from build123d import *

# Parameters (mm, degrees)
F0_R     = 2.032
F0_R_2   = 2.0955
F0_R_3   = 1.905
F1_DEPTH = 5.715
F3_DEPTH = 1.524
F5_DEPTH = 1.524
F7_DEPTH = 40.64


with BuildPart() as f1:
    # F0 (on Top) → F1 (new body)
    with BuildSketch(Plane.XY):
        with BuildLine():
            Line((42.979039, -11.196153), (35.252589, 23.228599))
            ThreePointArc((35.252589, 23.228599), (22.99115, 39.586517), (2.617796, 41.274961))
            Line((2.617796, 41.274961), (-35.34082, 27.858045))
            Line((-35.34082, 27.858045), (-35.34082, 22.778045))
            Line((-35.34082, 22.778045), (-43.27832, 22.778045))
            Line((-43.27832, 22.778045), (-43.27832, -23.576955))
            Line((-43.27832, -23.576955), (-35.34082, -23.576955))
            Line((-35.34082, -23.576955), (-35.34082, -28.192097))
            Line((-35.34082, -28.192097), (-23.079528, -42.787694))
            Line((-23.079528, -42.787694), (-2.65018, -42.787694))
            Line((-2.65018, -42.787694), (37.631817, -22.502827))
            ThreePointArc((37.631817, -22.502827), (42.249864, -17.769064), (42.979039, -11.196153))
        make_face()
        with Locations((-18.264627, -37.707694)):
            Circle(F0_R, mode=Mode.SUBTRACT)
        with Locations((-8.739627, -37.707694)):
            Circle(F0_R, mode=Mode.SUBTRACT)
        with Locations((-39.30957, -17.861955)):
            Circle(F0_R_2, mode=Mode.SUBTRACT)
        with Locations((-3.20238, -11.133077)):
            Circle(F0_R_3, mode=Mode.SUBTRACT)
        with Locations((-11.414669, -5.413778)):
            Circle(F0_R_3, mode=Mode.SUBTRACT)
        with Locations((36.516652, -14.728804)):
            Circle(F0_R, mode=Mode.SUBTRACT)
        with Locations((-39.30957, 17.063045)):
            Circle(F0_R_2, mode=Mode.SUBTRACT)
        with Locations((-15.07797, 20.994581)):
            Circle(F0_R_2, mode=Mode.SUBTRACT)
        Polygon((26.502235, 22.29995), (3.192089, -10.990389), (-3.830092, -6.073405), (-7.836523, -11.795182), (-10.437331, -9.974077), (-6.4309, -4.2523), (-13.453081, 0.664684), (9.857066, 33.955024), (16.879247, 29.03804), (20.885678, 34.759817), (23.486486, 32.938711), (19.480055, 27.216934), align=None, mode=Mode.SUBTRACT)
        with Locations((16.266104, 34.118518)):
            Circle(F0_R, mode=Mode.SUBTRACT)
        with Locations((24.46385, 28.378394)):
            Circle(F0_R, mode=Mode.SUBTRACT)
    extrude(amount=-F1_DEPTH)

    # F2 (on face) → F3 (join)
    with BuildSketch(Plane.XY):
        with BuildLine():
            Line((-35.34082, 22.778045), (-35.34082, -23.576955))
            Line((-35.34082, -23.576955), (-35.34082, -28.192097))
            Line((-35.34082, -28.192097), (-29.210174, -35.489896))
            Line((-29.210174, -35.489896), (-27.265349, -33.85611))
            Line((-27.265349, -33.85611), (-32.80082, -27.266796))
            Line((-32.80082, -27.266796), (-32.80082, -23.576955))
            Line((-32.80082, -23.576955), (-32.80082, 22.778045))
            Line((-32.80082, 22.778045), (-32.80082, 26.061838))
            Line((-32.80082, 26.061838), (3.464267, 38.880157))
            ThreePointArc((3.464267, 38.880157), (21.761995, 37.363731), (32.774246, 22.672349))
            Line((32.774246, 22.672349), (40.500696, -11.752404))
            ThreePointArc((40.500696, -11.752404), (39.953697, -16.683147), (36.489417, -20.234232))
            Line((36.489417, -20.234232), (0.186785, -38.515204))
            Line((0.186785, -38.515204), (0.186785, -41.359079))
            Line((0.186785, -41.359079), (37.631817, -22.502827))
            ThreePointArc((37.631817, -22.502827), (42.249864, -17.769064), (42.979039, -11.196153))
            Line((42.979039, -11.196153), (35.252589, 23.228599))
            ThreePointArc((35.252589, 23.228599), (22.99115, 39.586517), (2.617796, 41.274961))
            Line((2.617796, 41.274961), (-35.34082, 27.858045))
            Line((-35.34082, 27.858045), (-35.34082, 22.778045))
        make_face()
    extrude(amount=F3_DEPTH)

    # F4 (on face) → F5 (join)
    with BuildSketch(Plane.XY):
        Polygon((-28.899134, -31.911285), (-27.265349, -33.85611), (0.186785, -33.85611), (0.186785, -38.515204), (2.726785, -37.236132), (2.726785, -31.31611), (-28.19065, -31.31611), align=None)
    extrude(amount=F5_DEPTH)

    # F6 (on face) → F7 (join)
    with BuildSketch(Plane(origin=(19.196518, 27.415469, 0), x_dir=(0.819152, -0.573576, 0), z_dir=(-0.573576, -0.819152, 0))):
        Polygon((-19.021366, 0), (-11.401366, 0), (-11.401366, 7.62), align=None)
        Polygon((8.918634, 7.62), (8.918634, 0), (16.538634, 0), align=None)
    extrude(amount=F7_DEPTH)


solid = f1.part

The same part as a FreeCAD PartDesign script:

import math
import FreeCAD as App
import Part
import Sketcher

V = App.Vector
Q = App.Units.Quantity


def add_polygon(sketch, points):
    """Adds a closed chain of lines whose ends are joined by coincident constraints."""
    first, n = sketch.GeometryCount, len(points)
    for a, b in zip(points, points[1:] + points[:1]):
        sketch.addGeometry(Part.LineSegment(App.Vector(*a, 0), App.Vector(*b, 0)), False)
    for i in range(n):
        sketch.addConstraint(Sketcher.Constraint("Coincident", first + i, 2, first + (i + 1) % n, 1))

doc = App.newDocument("Part")
params = doc.addObject("Spreadsheet::Sheet", "Params")
for row, (alias, value) in enumerate([
    ("sketch1_diameter", "0.16 in"),
    ("sketch1_diameter2", "0.15 in"),
    ("sketch1_diameter3", "0.165 in"),
    ("sketch1_height", "0.2 in"),
    ("sketch1_length", "1.6 in"),
    ("pad1_length", "0.225 in"),
    ("sketch2_length", "0.1 in"),
    ("pad2_length", "0.06 in"),
    ("sketch3_length", "0.1 in"),
    ("pad3_length", "0.06 in"),
    ("sketch4_width", "0.3 in"),
    ("pad4_length", "1.6 in"),
], start=1):
    params.set(f"A{row}", alias)
    params.set(f"B{row}", "=" + value)
    params.setAlias(f"B{row}", alias)

body = doc.addObject("PartDesign::Body", "Body")

# Sketch on XY plane
sketch1 = body.newObject("Sketcher::SketchObject", "Sketch")
sketch1.AttachmentSupport = (doc.getObject("XY_Plane"), [""])
sketch1.MapMode = "FlatFace"
sketch1.addGeometry(Part.LineSegment(V(42.979039, -11.196153, 0), V(35.252589, 23.228599, 0)), False)  # 0
sketch1.addGeometry(Part.ArcOfCircle(Part.Circle(V(10.926355, 17.768708, 0), V(0, 0, 1), 24.931428), math.radians(12.65009), math.radians(109.466547)), False)  # 1
sketch1.addGeometry(Part.LineSegment(V(2.617796, 41.274961, 0), V(-35.34082, 27.858045, 0)), False)  # 2
sketch1.addGeometry(Part.LineSegment(V(-35.34082, 27.858045, 0), V(-35.34082, 22.778045, 0)), False)  # 3
sketch1.addGeometry(Part.LineSegment(V(-35.34082, 22.778045, 0), V(-43.27832, 22.778045, 0)), False)  # 4
sketch1.addGeometry(Part.LineSegment(V(-43.27832, 22.778045, 0), V(-43.27832, -23.576955, 0)), False)  # 5
sketch1.addGeometry(Part.LineSegment(V(-43.27832, -23.576955, 0), V(-35.34082, -23.576955, 0)), False)  # 6
sketch1.addGeometry(Part.LineSegment(V(-35.34082, -23.576955, 0), V(-35.34082, -28.192097, 0)), False)  # 7
sketch1.addGeometry(Part.LineSegment(V(-35.34082, -28.192097, 0), V(-23.079528, -42.787694, 0)), False)  # 8
sketch1.addGeometry(Part.LineSegment(V(-23.079528, -42.787694, 0), V(-2.65018, -42.787694, 0)), False)  # 9
sketch1.addGeometry(Part.LineSegment(V(-2.65018, -42.787694, 0), V(37.631817, -22.502827, 0)), False)  # 10
sketch1.addGeometry(Part.ArcOfCircle(Part.Circle(V(33.059267, -13.422591, 0), V(0, 0, 1), 10.166558), math.radians(-63.271468), math.radians(12.650083)), False)  # 11
sketch1.addGeometry(Part.Circle(V(-18.264627, -37.707694, 0), V(0, 0, 1), 2.032), False)  # 12
sketch1.addGeometry(Part.Circle(V(-8.739627, -37.707694, 0), V(0, 0, 1), 2.032), False)  # 13
sketch1.addGeometry(Part.Circle(V(-39.30957, -17.861955, 0), V(0, 0, 1), 2.0955), False)  # 14
sketch1.addGeometry(Part.Circle(V(-3.20238, -11.133077, 0), V(0, 0, 1), 1.905), False)  # 15
sketch1.addGeometry(Part.Circle(V(-11.414669, -5.413778, 0), V(0, 0, 1), 1.905), False)  # 16
sketch1.addGeometry(Part.Circle(V(36.516652, -14.728804, 0), V(0, 0, 1), 2.032), False)  # 17
sketch1.addGeometry(Part.Circle(V(-39.30957, 17.063045, 0), V(0, 0, 1), 2.0955), False)  # 18
sketch1.addGeometry(Part.Circle(V(-15.07797, 20.994581, 0), V(0, 0, 1), 2.0955), False)  # 19
add_polygon(sketch1, [(19.480055, 27.216934), (26.502235, 22.29995), (3.192089, -10.990389), (-3.830092, -6.073405), (-7.836523, -11.795182), (-10.437331, -9.974077), (-6.4309, -4.2523), (-13.453081, 0.664684), (9.857066, 33.955024), (16.879247, 29.03804), (20.885678, 34.759817), (23.486486, 32.938711)])  # lines 20-31
sketch1.addGeometry(Part.Circle(V(16.266104, 34.118518, 0), V(0, 0, 1), 2.032), False)  # 32
sketch1.addGeometry(Part.Circle(V(24.46385, 28.378394, 0), V(0, 0, 1), 2.032), False)  # 33
sketch1.addConstraint([
    Sketcher.Constraint("Tangent", 0, 2, 1, 1),
    Sketcher.Constraint("Tangent", 1, 2, 2, 1),
    Sketcher.Constraint("Coincident", 2, 2, 3, 1),
    Sketcher.Constraint("Coincident", 3, 2, 4, 1),
    Sketcher.Constraint("Coincident", 4, 2, 5, 1),
    Sketcher.Constraint("Coincident", 5, 2, 6, 1),
    Sketcher.Constraint("Coincident", 6, 2, 7, 1),
    Sketcher.Constraint("Coincident", 7, 2, 8, 1),
    Sketcher.Constraint("Coincident", 8, 2, 9, 1),
    Sketcher.Constraint("Coincident", 9, 2, 10, 1),
    Sketcher.Constraint("Tangent", 10, 2, 11, 1),
    Sketcher.Constraint("Tangent", 11, 2, 0, 1),
    Sketcher.Constraint("Vertical", 3),
    Sketcher.Constraint("Horizontal", 4),
    Sketcher.Constraint("Vertical", 5),
    Sketcher.Constraint("Horizontal", 6),
    Sketcher.Constraint("Vertical", 7),
    Sketcher.Constraint("Horizontal", 9),
    Sketcher.Constraint("Equal", 12, 13),
    Sketcher.Constraint("Equal", 15, 16),
    Sketcher.Constraint("Equal", 13, 17),
    Sketcher.Constraint("Equal", 14, 18),
    Sketcher.Constraint("Equal", 18, 19),
    Sketcher.Constraint("Equal", 17, 32),
    Sketcher.Constraint("Equal", 32, 33),
    Sketcher.Constraint("Perpendicular", 20, 21),
    Sketcher.Constraint("Perpendicular", 21, 22),
    Sketcher.Constraint("Perpendicular", 22, 23),
    Sketcher.Constraint("Perpendicular", 23, 24),
    Sketcher.Constraint("Perpendicular", 24, 25),
    Sketcher.Constraint("Perpendicular", 25, 26),
    Sketcher.Constraint("Perpendicular", 26, 27),
    Sketcher.Constraint("Perpendicular", 27, 28),
    Sketcher.Constraint("Perpendicular", 28, 29),
    Sketcher.Constraint("Perpendicular", 29, 30),
    Sketcher.Constraint("Perpendicular", 30, 31),
    Sketcher.Constraint("Horizontal", 12, 3, 13, 3),
    Sketcher.Constraint("Vertical", 14, 3, 18, 3),
    Sketcher.Constraint("Vertical", 3, 2, 6, 2),
    Sketcher.Constraint("Equal", 20, 22),
    Sketcher.Constraint("Equal", 23, 25),
    Sketcher.Constraint("Equal", 22, 26),
    Sketcher.Constraint("Equal", 21, 27),
    Sketcher.Constraint("Equal", 26, 28),
    Sketcher.Constraint("Equal", 25, 29),
    Sketcher.Constraint("Diameter", 12, Q("0.16 in")),
    Sketcher.Constraint("Diameter", 15, Q("0.15 in")),
    Sketcher.Constraint("Diameter", 14, Q("0.165 in")),
    Sketcher.Constraint("DistanceY", 3, 2, 3, 1, Q("0.2 in")),
    Sketcher.Constraint("Angle", 20, Q("-35.000003 deg")),
    Sketcher.Constraint("Distance", 21, Q("1.6 in")),
    Sketcher.Constraint("DistanceY", 14, 3, 2, 2, Q("1.8 in")),
    Sketcher.Constraint("DistanceY", 5, 2, 18, 3, Q("1.6 in")),
    Sketcher.Constraint("DistanceY", 8, 2, 12, 3, Q("0.2 in")),
    Sketcher.Constraint("DistanceX", 4, 2, 4, 1, Q("0.3125 in")),
    Sketcher.Constraint("DistanceY", 5, 2, 5, 1, Q("1.825 in")),
    Sketcher.Constraint("Distance", 23, Q("0.275 in")),
    Sketcher.Constraint("Distance", 24, Q("0.125 in")),
    Sketcher.Constraint("Radius", 11, Q("10.166558 mm")),
    Sketcher.Constraint("DistanceX", 12, 3, 13, 3, Q("0.375 in")),
    Sketcher.Constraint("DistanceX", 18, 3, 19, 3, Q("0.954 in")),
    Sketcher.Constraint("DistanceX", 18, 3, 2, 2, Q("0.15625 in")),
    Sketcher.Constraint("Distance", 20, Q("0.3375 in")),
    Sketcher.Constraint("Radius", 1, Q("24.931428 mm")),
    Sketcher.Constraint("DistanceX", 9, 1, 9, 2, Q("20.429348 mm")),
    Sketcher.Constraint("DistanceY", 7, 2, 7, 1, Q("4.615142 mm")),
    Sketcher.Constraint("DistanceY", -1, 1, 0, 2, Q("23.228599 mm")),
    Sketcher.Constraint("DistanceX", 25, 2, -1, 1, Q("6.4309 mm")),
    Sketcher.Constraint("DistanceY", 25, 2, -1, 1, Q("4.2523 mm")),
    Sketcher.Constraint("DistanceY", 11, 3, 1, 3, Q("31.191298 mm")),
    Sketcher.Constraint("DistanceY", 12, 3, 1, 3, Q("55.476402 mm")),
    Sketcher.Constraint("DistanceY", 15, 3, 16, 3, Q("5.719299 mm")),
    Sketcher.Constraint("DistanceX", 14, 3, 16, 3, Q("27.894901 mm")),
    Sketcher.Constraint("DistanceX", 8, 2, 12, 3, Q("4.814901 mm")),
    Sketcher.Constraint("DistanceX", 15, 3, 9, 2, Q("0.5522 mm")),
    Sketcher.Constraint("DistanceY", 11, 3, 21, 2, Q("2.432202 mm")),
    Sketcher.Constraint("DistanceY", 24, 2, 16, 3, Q("4.560299 mm")),
    Sketcher.Constraint("DistanceY", 32, 3, 29, 2, Q("0.641299 mm")),
    Sketcher.Constraint("Distance", 2, Q("40.260032 mm")),
    Sketcher.Constraint("DistanceX", 14, 3, -1, 1, Q("39.30957 mm")),
    Sketcher.Constraint("DistanceX", 15, 3, -1, 1, Q("3.20238 mm")),
    Sketcher.Constraint("DistanceY", -1, 1, 19, 3, Q("20.994581 mm")),
    Sketcher.Constraint("DistanceX", -1, 1, 33, 3, Q("24.46385 mm")),
    Sketcher.Constraint("DistanceX", -1, 1, 0, 2, Q("35.252589 mm")),
    Sketcher.Constraint("DistanceY", 17, 3, 1, 3, Q("32.497512 mm")),
    Sketcher.Constraint("DistanceX", 16, 3, 17, 3, Q("47.931321 mm")),
    Sketcher.Constraint("DistanceX", 1, 3, 32, 3, Q("5.339749 mm")),
    Sketcher.Constraint("DistanceY", 33, 3, 27, 2, Q("5.57663 mm")),
])
sketch1.setExpression("Constraints[57]", "Params.sketch1_diameter")
sketch1.setExpression("Constraints[58]", "Params.sketch1_diameter2")
sketch1.setExpression("Constraints[59]", "Params.sketch1_diameter3")
sketch1.setExpression("Constraints[60]", "Params.sketch1_height")
sketch1.setExpression("Constraints[62]", "Params.sketch1_length")
pad1 = body.newObject("PartDesign::Pad", "Pad")
pad1.Profile = sketch1
pad1.setExpression("Length", "Params.pad1_length")
pad1.Reversed = True

# Sketch on XY plane
sketch2 = body.newObject("Sketcher::SketchObject", "Sketch001")
sketch2.AttachmentSupport = (doc.getObject("XY_Plane"), [""])
sketch2.MapMode = "FlatFace"
sketch2.addGeometry([
    Part.LineSegment(V(-35.34082, -28.192097, 0), V(-29.210174, -35.489896, 0)),  # 0
    Part.LineSegment(V(-29.210174, -35.489896, 0), V(-27.265349, -33.85611, 0)),  # 1
    Part.LineSegment(V(-27.265349, -33.85611, 0), V(-32.80082, -27.266796, 0)),  # 2
    Part.LineSegment(V(-32.80082, -27.266796, 0), V(-32.80082, 26.061838, 0)),  # 3
    Part.LineSegment(V(-32.80082, 26.061838, 0), V(3.464267, 38.880157, 0)),  # 4
    Part.ArcOfCircle(Part.Circle(V(10.926354, 17.768707, 0), V(0, 0, 1), 22.391428), math.radians(12.650093), math.radians(109.466547)),  # 5
    Part.LineSegment(V(32.774246, 22.672349, 0), V(40.500696, -11.752404, 0)),  # 6
    Part.ArcOfCircle(Part.Circle(V(33.059268, -13.422591, 0), V(0, 0, 1), 7.626557), math.radians(-63.271474), math.radians(12.650083)),  # 7
    Part.LineSegment(V(36.489417, -20.234232, 0), V(0.186785, -38.515204, 0)),  # 8
    Part.LineSegment(V(0.186785, -38.515204, 0), V(0.186785, -41.359079, 0)),  # 9
    Part.LineSegment(V(0.186785, -41.359079, 0), V(37.631817, -22.502827, 0)),  # 10
    Part.ArcOfCircle(Part.Circle(V(33.059267, -13.422591, 0), V(0, 0, 1), 10.166558), math.radians(-63.271468), math.radians(12.650083)),  # 11
    Part.LineSegment(V(42.979039, -11.196153, 0), V(35.252589, 23.228599, 0)),  # 12
    Part.ArcOfCircle(Part.Circle(V(10.926355, 17.768708, 0), V(0, 0, 1), 24.931428), math.radians(12.65009), math.radians(109.466547)),  # 13
    Part.LineSegment(V(2.617796, 41.274961, 0), V(-35.34082, 27.858045, 0)),  # 14
    Part.LineSegment(V(-35.34082, 27.858045, 0), V(-35.34082, -28.192097, 0)),  # 15
], False)
sketch2.addConstraint([
    Sketcher.Constraint("Coincident", 0, 2, 1, 1),
    Sketcher.Constraint("Coincident", 1, 2, 2, 1),
    Sketcher.Constraint("Coincident", 2, 2, 3, 1),
    Sketcher.Constraint("Coincident", 3, 2, 4, 1),
    Sketcher.Constraint("Tangent", 4, 2, 5, 2),
    Sketcher.Constraint("Tangent", 5, 1, 6, 1),
    Sketcher.Constraint("Tangent", 6, 2, 7, 2),
    Sketcher.Constraint("Tangent", 7, 1, 8, 1),
    Sketcher.Constraint("Coincident", 8, 2, 9, 1),
    Sketcher.Constraint("Coincident", 9, 2, 10, 1),
    Sketcher.Constraint("Tangent", 10, 2, 11, 1),
    Sketcher.Constraint("Tangent", 11, 2, 12, 1),
    Sketcher.Constraint("Tangent", 12, 2, 13, 1),
    Sketcher.Constraint("Tangent", 13, 2, 14, 1),
    Sketcher.Constraint("Coincident", 14, 2, 15, 1),
    Sketcher.Constraint("Coincident", 15, 2, 0, 1),
    Sketcher.Constraint("Vertical", 3),
    Sketcher.Constraint("Vertical", 9),
    Sketcher.Constraint("Vertical", 15),
    Sketcher.Constraint("Coincident", 11, 3, 7, 3),
    Sketcher.Constraint("Coincident", 13, 3, 5, 3),
    Sketcher.Constraint("Perpendicular", 0, 1),
    Sketcher.Constraint("Perpendicular", 1, 2),
    Sketcher.Constraint("Parallel", 8, 10),
    Sketcher.Constraint("Parallel", 6, 12),
    Sketcher.Constraint("Parallel", 4, 14),
    Sketcher.Constraint("Distance", 1, Q("0.1 in")),
    Sketcher.Constraint("DistanceX", 14, 2, 3, 2, Q("0.1 in")),
    Sketcher.Constraint("Radius", 5, Q("22.391428 mm")),
    Sketcher.Constraint("Radius", 11, Q("10.166558 mm")),
    Sketcher.Constraint("Radius", 7, Q("7.626557 mm")),
    Sketcher.Constraint("DistanceY", -1, 1, 12, 2, Q("23.228599 mm")),
    Sketcher.Constraint("DistanceY", 7, 3, 5, 3, Q("31.191298 mm")),
    Sketcher.Constraint("DistanceY", 0, 2, 2, 2, Q("8.2231 mm")),
    Sketcher.Constraint("DistanceX", 4, 2, 11, 3, Q("29.595 mm")),
    Sketcher.Constraint("DistanceX", 7, 1, 10, 2, Q("1.1424 mm")),
    Sketcher.Constraint("DistanceY", 15, 2, 2, 2, Q("0.925301 mm")),
    Sketcher.Constraint("Distance", 6, Q("35.28118 mm")),
    Sketcher.Constraint("Distance", 14, Q("40.260032 mm")),
    Sketcher.Constraint("DistanceY", 3, 1, 3, 2, Q("53.328634 mm")),
    Sketcher.Constraint("DistanceX", -1, 1, 7, 3, Q("33.059268 mm")),
    Sketcher.Constraint("DistanceY", 9, 2, -1, 1, Q("41.359079 mm")),
])
sketch2.setExpression("Constraints[26]", "Params.sketch2_length")
pad2 = body.newObject("PartDesign::Pad", "Pad001")
pad2.Profile = sketch2
pad2.setExpression("Length", "Params.pad2_length")

# Sketch on XY plane
sketch3 = body.newObject("Sketcher::SketchObject", "Sketch002")
sketch3.AttachmentSupport = (doc.getObject("XY_Plane"), [""])
sketch3.MapMode = "FlatFace"
add_polygon(sketch3, [(-28.899134, -31.911285), (-27.265349, -33.85611), (0.186785, -33.85611), (0.186785, -38.515204), (2.726785, -37.236132), (2.726785, -31.31611), (-28.19065, -31.31611)])  # lines 0-6
sketch3.addConstraint([
    Sketcher.Constraint("Horizontal", 1),
    Sketcher.Constraint("Vertical", 2),
    Sketcher.Constraint("Vertical", 4),
    Sketcher.Constraint("Horizontal", 5),
    Sketcher.Constraint("Perpendicular", 0, 6),
    Sketcher.Constraint("Distance", 0, Q("0.1 in")),
    Sketcher.Constraint("DistanceX", 2, 2, 3, 2, Q("0.1 in")),
    Sketcher.Constraint("DistanceY", 1, 2, 4, 2, Q("0.1 in")),
    Sketcher.Constraint("Distance", 6, Q("0.925301 mm")),
    Sketcher.Constraint("DistanceY", 4, 1, 4, 2, Q("5.920022 mm")),
    Sketcher.Constraint("DistanceX", 1, 1, 1, 2, Q("27.452134 mm")),
    Sketcher.Constraint("DistanceY", 2, 2, 2, 1, Q("4.659094 mm")),
    Sketcher.Constraint("DistanceX", 0, 2, -1, 1, Q("27.265349 mm")),
    Sketcher.Constraint("DistanceY", 0, 2, -1, 1, Q("33.85611 mm")),
])
sketch3.setExpression("Constraints[12]", "Params.sketch3_length")
pad3 = body.newObject("PartDesign::Pad", "Pad002")
pad3.Profile = sketch3
pad3.setExpression("Length", "Params.pad3_length")

# Sketch on an angled plane
sketch4 = body.newObject("Sketcher::SketchObject", "Sketch003")
sketch4.Placement = App.Placement(V(19.196518, 27.415469, 0), App.Rotation(V(0.819152235, -0.573576164, 0), V(0, 0, 1), V(-0.573576164, -0.819152235, 0), "ZXY"))
add_polygon(sketch4, [(-19.021366, 0), (-11.401366, 0), (-11.401366, 7.62)])  # lines 0-2
add_polygon(sketch4, [(8.918634, 7.62), (8.918634, 0), (16.538634, 0)])  # lines 3-5
sketch4.addConstraint([
    Sketcher.Constraint("Horizontal", 0),
    Sketcher.Constraint("Vertical", 1),
    Sketcher.Constraint("Vertical", 3),
    Sketcher.Constraint("Horizontal", 4),
    Sketcher.Constraint("PointOnObject", 0, 2, -1),
    Sketcher.Constraint("PointOnObject", 3, 2, -1),
    Sketcher.Constraint("Perpendicular", 2, 5),
    Sketcher.Constraint("Horizontal", 1, 2, 5, 2),
    Sketcher.Constraint("Equal", 0, 4),
    Sketcher.Constraint("DistanceX", 0, 1, 0, 2, Q("0.3 in")),
    Sketcher.Constraint("DistanceX", 0, 2, 3, 2, Q("0.8 in")),
    Sketcher.Constraint("DistanceX", 0, 2, -1, 1, Q("11.401366 mm")),
])
sketch4.setExpression("Constraints[15]", "Params.sketch4_width")
pad4 = body.newObject("PartDesign::Pad", "Pad003")
pad4.Profile = sketch4
pad4.setExpression("Length", "Params.pad4_length")

doc.recompute()
